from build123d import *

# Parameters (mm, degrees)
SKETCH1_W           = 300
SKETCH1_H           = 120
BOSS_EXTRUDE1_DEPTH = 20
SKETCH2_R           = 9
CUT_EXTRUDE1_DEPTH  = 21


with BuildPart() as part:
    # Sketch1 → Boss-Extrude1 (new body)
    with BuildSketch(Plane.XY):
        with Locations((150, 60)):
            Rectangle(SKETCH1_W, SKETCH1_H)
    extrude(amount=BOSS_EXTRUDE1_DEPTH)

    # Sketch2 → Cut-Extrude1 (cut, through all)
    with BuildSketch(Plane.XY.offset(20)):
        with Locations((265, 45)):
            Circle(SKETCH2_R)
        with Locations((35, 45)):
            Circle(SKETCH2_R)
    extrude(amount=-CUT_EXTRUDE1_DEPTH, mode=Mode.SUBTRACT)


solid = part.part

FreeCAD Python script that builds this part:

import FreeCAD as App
import Part
import Sketcher


def add_polygon(sketch, points):
    """Adds a closed chain of lines whose ends are joined by coincident constraints."""
    first, n = sketch.GeometryCount, len(points)
    for a, b in zip(points, points[1:] + points[:1]):
        sketch.addGeometry(Part.LineSegment(App.Vector(*a, 0), App.Vector(*b, 0)), False)
    for i in range(n):
        sketch.addConstraint(Sketcher.Constraint("Coincident", first + i, 2, first + (i + 1) % n, 1))

doc = App.newDocument("Part")
body = doc.addObject("PartDesign::Body", "Body")

sketch1 = body.newObject("Sketcher::SketchObject", "Sketch")
sketch1.AttachmentSupport = (doc.getObject("XY_Plane"), [""])
sketch1.MapMode = "FlatFace"
add_polygon(sketch1, [(0, 120), (0, 0), (300, 0), (300, 120)])
sketch1.addConstraint([
    Sketcher.Constraint("Vertical", 0),
    Sketcher.Constraint("Horizontal", 1),
    Sketcher.Constraint("Vertical", 2),
    Sketcher.Constraint("Horizontal", 3),
    Sketcher.Constraint("Coincident", 0, 2, -1, 1),
    Sketcher.Constraint("DistanceX", 1, 1, 1, 2, 300.0),
    Sketcher.Constraint("DistanceY", 0, 2, 0, 1, 120.0),
])
pad1 = body.newObject("PartDesign::Pad", "Pad")
pad1.Profile = sketch1
pad1.Length = 20

sketch2 = body.newObject("Sketcher::SketchObject", "Sketch001")
sketch2.AttachmentSupport = (doc.getObject("XY_Plane"), [""])
sketch2.MapMode = "FlatFace"
sketch2.AttachmentOffset = App.Placement(App.Vector(0, 0, 20), App.Rotation())
sketch2.addGeometry([
    Part.Circle(App.Vector(265, 45, 0), App.Vector(0, 0, 1), 9),
    Part.Circle(App.Vector(35, 45, 0), App.Vector(0, 0, 1), 9),
], False)
sketch2.addConstraint([
    Sketcher.Constraint("Equal", 0, 1),
    Sketcher.Constraint("Horizontal", 0, 3, 1, 3),
    Sketcher.Constraint("Diameter", 0, 18.0),
    Sketcher.Constraint("DistanceX", -1, 1, 0, 3, 265.0),
    Sketcher.Constraint("DistanceY", -1, 1, 0, 3, 45.0),
    Sketcher.Constraint("DistanceX", -1, 1, 1, 3, 35.0),
])
pocket1 = body.newObject("PartDesign::Pocket", "Pocket")
pocket1.Profile = sketch2
pocket1.Type = "ThroughAll"

doc.recompute()
